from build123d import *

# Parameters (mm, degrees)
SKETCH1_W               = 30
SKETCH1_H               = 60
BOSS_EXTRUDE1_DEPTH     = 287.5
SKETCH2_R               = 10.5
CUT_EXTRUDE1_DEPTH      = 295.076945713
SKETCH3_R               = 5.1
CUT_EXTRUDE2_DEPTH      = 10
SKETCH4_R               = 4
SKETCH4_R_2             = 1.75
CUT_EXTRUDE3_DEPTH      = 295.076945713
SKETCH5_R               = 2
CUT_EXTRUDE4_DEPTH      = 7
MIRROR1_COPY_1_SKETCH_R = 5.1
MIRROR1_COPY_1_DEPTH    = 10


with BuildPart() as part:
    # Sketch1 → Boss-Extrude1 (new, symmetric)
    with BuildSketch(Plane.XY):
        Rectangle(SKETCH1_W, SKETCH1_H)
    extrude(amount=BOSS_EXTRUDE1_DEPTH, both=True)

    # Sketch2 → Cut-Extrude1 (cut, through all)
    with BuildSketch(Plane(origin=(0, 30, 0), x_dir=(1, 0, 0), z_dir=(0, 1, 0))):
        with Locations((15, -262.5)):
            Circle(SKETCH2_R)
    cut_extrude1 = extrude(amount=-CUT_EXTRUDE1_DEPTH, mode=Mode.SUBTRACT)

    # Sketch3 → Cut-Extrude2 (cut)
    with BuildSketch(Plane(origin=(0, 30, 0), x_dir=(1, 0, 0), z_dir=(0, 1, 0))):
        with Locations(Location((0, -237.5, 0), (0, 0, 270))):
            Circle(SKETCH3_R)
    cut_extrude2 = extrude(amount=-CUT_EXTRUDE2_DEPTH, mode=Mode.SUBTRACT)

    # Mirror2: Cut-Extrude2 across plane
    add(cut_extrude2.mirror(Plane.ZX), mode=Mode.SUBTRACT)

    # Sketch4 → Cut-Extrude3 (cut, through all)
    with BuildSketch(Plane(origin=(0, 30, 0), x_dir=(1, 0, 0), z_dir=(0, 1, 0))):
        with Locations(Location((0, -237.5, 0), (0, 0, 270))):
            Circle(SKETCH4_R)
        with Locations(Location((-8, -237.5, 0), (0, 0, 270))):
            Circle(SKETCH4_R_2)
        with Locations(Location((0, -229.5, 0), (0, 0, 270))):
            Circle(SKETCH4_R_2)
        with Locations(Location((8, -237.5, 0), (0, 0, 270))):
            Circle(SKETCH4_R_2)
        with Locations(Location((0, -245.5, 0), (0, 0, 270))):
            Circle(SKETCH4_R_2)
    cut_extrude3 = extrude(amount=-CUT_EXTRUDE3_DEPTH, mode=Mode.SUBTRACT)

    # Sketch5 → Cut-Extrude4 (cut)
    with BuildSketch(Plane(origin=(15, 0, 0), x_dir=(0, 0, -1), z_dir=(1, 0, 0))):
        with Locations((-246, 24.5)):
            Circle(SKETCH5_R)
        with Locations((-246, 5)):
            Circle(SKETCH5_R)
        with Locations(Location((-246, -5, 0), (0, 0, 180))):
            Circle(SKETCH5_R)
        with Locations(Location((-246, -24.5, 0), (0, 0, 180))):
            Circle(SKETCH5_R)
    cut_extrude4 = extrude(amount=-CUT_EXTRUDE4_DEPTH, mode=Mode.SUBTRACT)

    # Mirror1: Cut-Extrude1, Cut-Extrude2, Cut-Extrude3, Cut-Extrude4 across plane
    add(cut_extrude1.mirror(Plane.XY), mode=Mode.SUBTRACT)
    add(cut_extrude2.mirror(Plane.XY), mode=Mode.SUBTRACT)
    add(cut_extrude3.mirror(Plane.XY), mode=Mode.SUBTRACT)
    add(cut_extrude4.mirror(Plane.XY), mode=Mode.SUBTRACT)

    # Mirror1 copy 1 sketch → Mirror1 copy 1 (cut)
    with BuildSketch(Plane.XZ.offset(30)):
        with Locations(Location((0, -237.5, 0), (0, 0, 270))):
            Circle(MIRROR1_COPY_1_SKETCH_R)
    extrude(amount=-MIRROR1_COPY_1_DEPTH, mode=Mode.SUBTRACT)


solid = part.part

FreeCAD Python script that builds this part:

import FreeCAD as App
import Part
import Sketcher


def add_polygon(sketch, points):
    """Adds a closed chain of lines whose ends are joined by coincident constraints."""
    first, n = sketch.GeometryCount, len(points)
    for a, b in zip(points, points[1:] + points[:1]):
        sketch.addGeometry(Part.LineSegment(App.Vector(*a, 0), App.Vector(*b, 0)), False)
    for i in range(n):
        sketch.addConstraint(Sketcher.Constraint("Coincident", first + i, 2, first + (i + 1) % n, 1))

doc = App.newDocument("Part")
body = doc.addObject("PartDesign::Body", "Body")

sketch1 = body.newObject("Sketcher::SketchObject", "Sketch")
sketch1.AttachmentSupport = (doc.getObject("XY_Plane"), [""])
sketch1.MapMode = "FlatFace"
add_polygon(sketch1, [(-15, 30), (-15, -30), (15, -30), (15, 30)])
sketch1.addConstraint(Sketcher.Constraint("Vertical", 0))
sketch1.addConstraint(Sketcher.Constraint("Horizontal", 1))
sketch1.addConstraint(Sketcher.Constraint("Vertical", 2))
sketch1.addConstraint(Sketcher.Constraint("Horizontal", 3))
sketch1.addConstraint(Sketcher.Constraint("Symmetric", 0, 2, 2, 2, -1, 1))
sketch1.addConstraint(Sketcher.Constraint("DistanceX", 1, 1, 1, 2, 30.0))
sketch1.addConstraint(Sketcher.Constraint("DistanceY", 0, 2, 0, 1, 60.0))
pad1 = body.newObject("PartDesign::Pad", "Pad")
pad1.Profile = sketch1
pad1.Length = 575
pad1.Midplane = True

sketch2 = body.newObject("Sketcher::SketchObject", "Sketch001")
sketch2.AttachmentSupport = (doc.getObject("XZ_Plane"), [""])
sketch2.MapMode = "FlatFace"
sketch2.AttachmentOffset = App.Placement(App.Vector(0, 0, -30), App.Rotation())
sketch2.addGeometry(Part.Circle(App.Vector(15, 262, 0), App.Vector(0, 0, 1), 10), False)
sketch2.addConstraint(Sketcher.Constraint("Diameter", 0, 21.0))
sketch2.addConstraint(Sketcher.Constraint("DistanceX", -1, 1, 0, 3, 15.0))
sketch2.addConstraint(Sketcher.Constraint("DistanceY", -1, 1, 0, 3, 262.5))
pocket1 = body.newObject("PartDesign::Pocket", "Pocket")
pocket1.Profile = sketch2
pocket1.Type = "ThroughAll"
pocket1.Reversed = True

sketch3 = body.newObject("Sketcher::SketchObject", "Sketch002")
sketch3.AttachmentSupport = (doc.getObject("XZ_Plane"), [""])
sketch3.MapMode = "FlatFace"
sketch3.AttachmentOffset = App.Placement(App.Vector(0, 0, -30), App.Rotation())
sketch3.addGeometry(Part.Circle(App.Vector(0, 238, 0), App.Vector(0, 0, 1), 5), False)
sketch3.addConstraint(Sketcher.Constraint("PointOnObject", 0, 3, -2))
sketch3.addConstraint(Sketcher.Constraint("Diameter", 0, 10.2))
sketch3.addConstraint(Sketcher.Constraint("DistanceY", -1, 1, 0, 3, 237.5))
pocket2 = body.newObject("PartDesign::Pocket", "Pocket001")
pocket2.Profile = sketch3
pocket2.Length = 10
pocket2.Reversed = True
doc.recompute()

mirrored = body.newObject("PartDesign::Mirrored", "Mirrored")
mirrored.Originals = [pocket2]
mirrored.MirrorPlane = (doc.getObject("XZ_Plane"), [""])
body.Tip = mirrored

sketch4 = body.newObject("Sketcher::SketchObject", "Sketch003")
sketch4.AttachmentSupport = (doc.getObject("XZ_Plane"), [""])
sketch4.MapMode = "FlatFace"
sketch4.AttachmentOffset = App.Placement(App.Vector(0, 0, -30), App.Rotation())
sketch4.addGeometry(Part.Circle(App.Vector(0, 237.5, 0), App.Vector(0, 0, 1), 4), False)
sketch4.addGeometry(Part.Circle(App.Vector(-8, 237.5, 0), App.Vector(0, 0, 1), 1.8), False)
sketch4.addGeometry(Part.Circle(App.Vector(0, 229.5, 0), App.Vector(0, 0, 1), 1.8), False)
sketch4.addGeometry(Part.Circle(App.Vector(8, 237.5, 0), App.Vector(0, 0, 1), 1.8), False)
sketch4.addGeometry(Part.Circle(App.Vector(0, 245.5, 0), App.Vector(0, 0, 1), 1.8), False)
sketch4.addConstraint(Sketcher.Constraint("Equal", 1, 2))
sketch4.addConstraint(Sketcher.Constraint("Equal", 2, 3))
sketch4.addConstraint(Sketcher.Constraint("Equal", 3, 4))
sketch4.addConstraint(Sketcher.Constraint("Symmetric", 1, 3, 3, 3, -2))
sketch4.addConstraint(Sketcher.Constraint("PointOnObject", 0, 3, -2))
sketch4.addConstraint(Sketcher.Constraint("PointOnObject", 2, 3, -2))
sketch4.addConstraint(Sketcher.Constraint("PointOnObject", 4, 3, -2))
sketch4.addConstraint(Sketcher.Constraint("Horizontal", 0, 3, 1, 3))
sketch4.addConstraint(Sketcher.Constraint("Diameter", 0, 8.0))
sketch4.addConstraint(Sketcher.Constraint("Diameter", 1, 3.5))
sketch4.addConstraint(Sketcher.Constraint("DistanceX", 1, 3, -1, 1, 8.0))
sketch4.addConstraint(Sketcher.Constraint("DistanceY", 2, 3, 0, 3, 8.0))
sketch4.addConstraint(Sketcher.Constraint("DistanceY", 0, 3, 4, 3, 8.0))
sketch4.addConstraint(Sketcher.Constraint("DistanceY", -1, 1, 0, 3, 237.5))
pocket3 = body.newObject("PartDesign::Pocket", "Pocket002")
pocket3.Profile = sketch4
pocket3.Type = "ThroughAll"
pocket3.Reversed = True

sketch5 = body.newObject("Sketcher::SketchObject", "Sketch004")
sketch5.AttachmentSupport = (doc.getObject("YZ_Plane"), [""])
sketch5.MapMode = "FlatFace"
sketch5.AttachmentOffset = App.Placement(App.Vector(0, 0, 15), App.Rotation())
sketch5.addGeometry(Part.Circle(App.Vector(24.5, 246, 0), App.Vector(0, 0, 1), 2), False)
sketch5.addGeometry(Part.Circle(App.Vector(5, 246, 0), App.Vector(0, 0, 1), 2), False)
sketch5.addGeometry(Part.Circle(App.Vector(-5, 246, 0), App.Vector(0, 0, 1), 2), False)
sketch5.addGeometry(Part.Circle(App.Vector(-24.5, 246, 0), App.Vector(0, 0, 1), 2), False)
sketch5.addConstraint(Sketcher.Constraint("Equal", 0, 1))
sketch5.addConstraint(Sketcher.Constraint("Equal", 1, 2))
sketch5.addConstraint(Sketcher.Constraint("Equal", 2, 3))
sketch5.addConstraint(Sketcher.Constraint("Symmetric", 1, 3, 2, 3, -2))
sketch5.addConstraint(Sketcher.Constraint("Symmetric", 0, 3, 3, 3, -2))
sketch5.addConstraint(Sketcher.Constraint("Horizontal", 0, 3, 1, 3))
sketch5.addConstraint(Sketcher.Constraint("Diameter", 0, 4.0))
sketch5.addConstraint(Sketcher.Constraint("DistanceY", -1, 1, 0, 3, 246.0))
sketch5.addConstraint(Sketcher.Constraint("DistanceX", -1, 1, 1, 3, 5.0))
sketch5.addConstraint(Sketcher.Constraint("DistanceX", 3, 3, 0, 3, 49.0))
pocket4 = body.newObject("PartDesign::Pocket", "Pocket003")
pocket4.Profile = sketch5
pocket4.Length = 7
doc.recompute()

mirrored2 = body.newObject("PartDesign::Mirrored", "Mirrored001")
mirrored2.Originals = [pocket1, pocket2, pocket3, pocket4]
mirrored2.MirrorPlane = (doc.getObject("XY_Plane"), [""])
body.Tip = mirrored2

sketch6 = body.newObject("Sketcher::SketchObject", "Sketch005")
sketch6.AttachmentSupport = (doc.getObject("XZ_Plane"), [""])
sketch6.MapMode = "FlatFace"
sketch6.AttachmentOffset = App.Placement(App.Vector(0, 0, 30), App.Rotation())
sketch6.addGeometry(Part.Circle(App.Vector(0, -238, 0), App.Vector(0, 0, 1), 5), False)
sketch6.addConstraint(Sketcher.Constraint("PointOnObject", 0, 3, -2))
sketch6.addConstraint(Sketcher.Constraint("Diameter", 0, 10.2))
sketch6.addConstraint(Sketcher.Constraint("DistanceY", 0, 3, -1, 1, 237.5))
pocket5 = body.newObject("PartDesign::Pocket", "Pocket004")
pocket5.Profile = sketch6
pocket5.Length = 10

doc.recompute()
